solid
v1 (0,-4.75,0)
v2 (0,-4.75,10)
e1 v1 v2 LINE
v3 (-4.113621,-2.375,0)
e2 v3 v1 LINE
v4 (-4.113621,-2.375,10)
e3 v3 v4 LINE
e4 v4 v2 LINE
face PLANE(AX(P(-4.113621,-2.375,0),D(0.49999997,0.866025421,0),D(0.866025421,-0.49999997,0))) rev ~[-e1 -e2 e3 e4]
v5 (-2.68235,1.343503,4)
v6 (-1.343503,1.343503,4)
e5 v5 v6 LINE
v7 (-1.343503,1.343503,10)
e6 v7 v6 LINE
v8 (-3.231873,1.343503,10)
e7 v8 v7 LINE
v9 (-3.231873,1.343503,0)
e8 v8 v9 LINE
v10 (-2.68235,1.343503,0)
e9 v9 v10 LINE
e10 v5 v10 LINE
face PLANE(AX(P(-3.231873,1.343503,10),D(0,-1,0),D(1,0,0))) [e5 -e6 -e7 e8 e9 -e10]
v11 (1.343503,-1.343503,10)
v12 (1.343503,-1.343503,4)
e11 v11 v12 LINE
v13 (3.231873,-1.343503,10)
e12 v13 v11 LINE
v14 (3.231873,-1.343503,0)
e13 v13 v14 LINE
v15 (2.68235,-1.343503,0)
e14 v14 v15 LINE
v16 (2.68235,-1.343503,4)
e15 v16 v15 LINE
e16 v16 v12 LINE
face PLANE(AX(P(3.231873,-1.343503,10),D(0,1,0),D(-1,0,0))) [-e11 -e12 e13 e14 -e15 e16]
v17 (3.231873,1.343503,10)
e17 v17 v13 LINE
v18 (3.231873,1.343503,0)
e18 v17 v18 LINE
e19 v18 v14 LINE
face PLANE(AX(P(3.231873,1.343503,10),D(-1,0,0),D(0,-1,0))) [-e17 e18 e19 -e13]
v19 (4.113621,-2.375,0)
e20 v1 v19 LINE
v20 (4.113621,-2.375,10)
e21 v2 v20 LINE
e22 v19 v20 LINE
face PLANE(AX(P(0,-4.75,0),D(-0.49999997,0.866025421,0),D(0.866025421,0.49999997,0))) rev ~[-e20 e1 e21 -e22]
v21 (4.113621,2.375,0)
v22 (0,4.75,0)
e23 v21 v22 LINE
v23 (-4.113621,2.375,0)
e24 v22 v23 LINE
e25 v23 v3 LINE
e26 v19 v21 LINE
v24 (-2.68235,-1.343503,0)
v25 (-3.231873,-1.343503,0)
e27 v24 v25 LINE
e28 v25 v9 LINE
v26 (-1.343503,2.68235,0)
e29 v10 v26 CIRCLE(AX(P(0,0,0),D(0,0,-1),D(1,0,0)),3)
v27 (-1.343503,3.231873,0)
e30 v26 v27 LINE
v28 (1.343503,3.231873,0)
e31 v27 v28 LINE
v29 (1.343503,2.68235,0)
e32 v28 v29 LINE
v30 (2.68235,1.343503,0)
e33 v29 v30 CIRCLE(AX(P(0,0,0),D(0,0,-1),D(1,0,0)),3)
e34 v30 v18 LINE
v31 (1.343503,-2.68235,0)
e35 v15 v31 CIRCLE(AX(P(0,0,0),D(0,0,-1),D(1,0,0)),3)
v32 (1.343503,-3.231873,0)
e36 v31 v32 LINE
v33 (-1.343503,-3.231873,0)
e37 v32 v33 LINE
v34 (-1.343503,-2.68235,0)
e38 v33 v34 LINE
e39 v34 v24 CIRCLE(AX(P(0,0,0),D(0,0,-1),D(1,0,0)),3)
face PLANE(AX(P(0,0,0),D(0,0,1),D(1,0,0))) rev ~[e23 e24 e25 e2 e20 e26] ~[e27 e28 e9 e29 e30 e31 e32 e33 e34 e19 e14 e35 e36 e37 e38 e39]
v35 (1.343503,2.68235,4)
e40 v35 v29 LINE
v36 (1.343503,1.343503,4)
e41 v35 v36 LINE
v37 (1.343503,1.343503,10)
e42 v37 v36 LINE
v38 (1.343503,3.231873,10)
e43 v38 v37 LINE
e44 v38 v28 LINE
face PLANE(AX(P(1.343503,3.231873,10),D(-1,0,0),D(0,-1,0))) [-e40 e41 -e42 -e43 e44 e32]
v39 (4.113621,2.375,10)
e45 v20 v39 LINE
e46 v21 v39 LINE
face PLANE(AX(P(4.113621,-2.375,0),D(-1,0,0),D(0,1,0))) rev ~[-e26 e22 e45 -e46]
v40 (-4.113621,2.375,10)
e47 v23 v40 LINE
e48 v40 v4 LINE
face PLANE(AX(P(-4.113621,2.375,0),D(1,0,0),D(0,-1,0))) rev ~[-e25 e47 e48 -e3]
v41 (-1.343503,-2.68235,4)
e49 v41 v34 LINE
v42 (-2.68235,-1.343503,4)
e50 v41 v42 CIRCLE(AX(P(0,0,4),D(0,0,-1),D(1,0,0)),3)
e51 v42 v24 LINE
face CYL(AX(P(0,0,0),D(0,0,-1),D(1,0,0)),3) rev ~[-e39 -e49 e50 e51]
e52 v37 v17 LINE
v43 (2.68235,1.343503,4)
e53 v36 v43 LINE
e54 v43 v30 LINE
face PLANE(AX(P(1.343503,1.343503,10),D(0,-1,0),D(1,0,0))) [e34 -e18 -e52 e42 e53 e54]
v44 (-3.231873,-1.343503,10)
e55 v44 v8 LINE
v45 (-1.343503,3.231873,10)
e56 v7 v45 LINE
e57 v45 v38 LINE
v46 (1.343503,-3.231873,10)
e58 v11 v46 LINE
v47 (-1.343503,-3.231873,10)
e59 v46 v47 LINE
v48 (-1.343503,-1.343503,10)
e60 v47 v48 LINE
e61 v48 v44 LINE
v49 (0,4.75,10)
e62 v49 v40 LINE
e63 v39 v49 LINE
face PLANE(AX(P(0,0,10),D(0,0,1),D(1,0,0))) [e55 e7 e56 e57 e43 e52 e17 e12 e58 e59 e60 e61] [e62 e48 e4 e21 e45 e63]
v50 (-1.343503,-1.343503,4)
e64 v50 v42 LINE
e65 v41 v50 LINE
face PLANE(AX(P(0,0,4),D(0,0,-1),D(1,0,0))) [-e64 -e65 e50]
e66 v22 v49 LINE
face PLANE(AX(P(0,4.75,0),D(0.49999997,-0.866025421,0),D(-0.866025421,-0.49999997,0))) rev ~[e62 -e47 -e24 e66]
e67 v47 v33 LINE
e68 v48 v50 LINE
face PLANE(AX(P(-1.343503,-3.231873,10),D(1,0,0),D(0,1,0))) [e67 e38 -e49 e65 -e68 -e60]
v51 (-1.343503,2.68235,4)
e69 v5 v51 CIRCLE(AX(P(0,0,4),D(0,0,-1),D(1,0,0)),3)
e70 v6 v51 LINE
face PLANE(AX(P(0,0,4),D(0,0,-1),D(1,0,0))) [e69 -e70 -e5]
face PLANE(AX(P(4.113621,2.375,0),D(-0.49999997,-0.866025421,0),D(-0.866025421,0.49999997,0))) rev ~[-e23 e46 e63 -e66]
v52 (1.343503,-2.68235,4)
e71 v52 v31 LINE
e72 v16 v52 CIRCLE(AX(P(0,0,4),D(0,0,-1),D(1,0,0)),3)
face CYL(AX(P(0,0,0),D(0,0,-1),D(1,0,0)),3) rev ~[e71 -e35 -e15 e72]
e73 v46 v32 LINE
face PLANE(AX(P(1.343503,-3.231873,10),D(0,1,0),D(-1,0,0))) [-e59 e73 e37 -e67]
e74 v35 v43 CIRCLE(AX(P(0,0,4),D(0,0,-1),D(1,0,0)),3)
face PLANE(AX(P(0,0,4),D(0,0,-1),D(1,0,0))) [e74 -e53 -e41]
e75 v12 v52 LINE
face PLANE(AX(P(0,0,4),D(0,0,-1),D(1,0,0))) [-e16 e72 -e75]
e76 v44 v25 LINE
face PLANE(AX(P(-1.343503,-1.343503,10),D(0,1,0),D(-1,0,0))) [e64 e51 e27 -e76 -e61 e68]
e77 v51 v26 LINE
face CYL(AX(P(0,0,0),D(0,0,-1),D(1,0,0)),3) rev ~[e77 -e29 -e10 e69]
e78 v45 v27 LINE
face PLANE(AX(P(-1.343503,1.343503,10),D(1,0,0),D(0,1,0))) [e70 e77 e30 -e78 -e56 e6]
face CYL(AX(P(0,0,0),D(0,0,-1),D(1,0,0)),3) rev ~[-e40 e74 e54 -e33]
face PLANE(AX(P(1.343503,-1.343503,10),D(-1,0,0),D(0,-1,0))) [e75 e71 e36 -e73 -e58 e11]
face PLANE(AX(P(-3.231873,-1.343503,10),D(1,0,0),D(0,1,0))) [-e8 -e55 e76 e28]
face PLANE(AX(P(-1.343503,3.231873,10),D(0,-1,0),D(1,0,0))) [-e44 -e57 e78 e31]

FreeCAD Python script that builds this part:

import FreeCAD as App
import Part
import Sketcher
from FreeCAD import Vector
Q = App.Units.Quantity


def add_polygon(sketch, points):
    """Adds a closed chain of lines whose ends are joined by coincident constraints."""
    first, n = sketch.GeometryCount, len(points)
    for a, b in zip(points, points[1:] + points[:1]):
        sketch.addGeometry(Part.LineSegment(App.Vector(*a, 0), App.Vector(*b, 0)), False)
    for i in range(n):
        sketch.addConstraint(Sketcher.Constraint("Coincident", first + i, 2, first + (i + 1) % n, 1))

doc = App.newDocument("Part")
body = doc.addObject("PartDesign::Body", "Body")

# Sketch on XY plane
sketch1 = body.newObject("Sketcher::SketchObject", "Sketch")
sketch1.AttachmentSupport = (doc.getObject("XY_Plane"), [""])
sketch1.MapMode = "FlatFace"
add_polygon(sketch1, [(4.113621, -2.375), (4.113621, 2.375), (0, 4.75), (-4.113621, 2.375), (-4.113621, -2.375), (0, -4.75)])  # lines 0-5
sketch1.addConstraint([
    Sketcher.Constraint("Vertical", 0),
    Sketcher.Constraint("Vertical", 3),
    Sketcher.Constraint("Symmetric", 0, 2, 3, 2, -1, 1),
    Sketcher.Constraint("Symmetric", 1, 2, 4, 2, -1, 1),
    Sketcher.Constraint("PointOnObject", 1, 2, -2),
    Sketcher.Constraint("Parallel", 2, 5),
    Sketcher.Constraint("Horizontal", 0, 2, 2, 2),
    Sketcher.Constraint("Angle", 1, Q("150.000002 deg")),
    Sketcher.Constraint("DistanceY", 0, 1, 0, 2, Q("4.75 mm")),
    Sketcher.Constraint("DistanceY", 4, 2, 1, 2, Q("9.5 mm")),
])
pad1 = body.newObject("PartDesign::Pad", "Pad")
pad1.Profile = sketch1
pad1.Length = 10

# Sketch on XY plane
sketch2 = body.newObject("Sketcher::SketchObject", "Sketch001")
sketch2.AttachmentSupport = (doc.getObject("XY_Plane"), [""])
sketch2.MapMode = "FlatFace"
sketch2.AttachmentOffset = App.Placement(Vector(0, 0, 10), App.Rotation())
add_polygon(sketch2, [(-3.231873, 1.343503), (-3.231873, -1.343503), (-1.343503, -1.343503), (-1.343503, -3.231873), (1.343503, -3.231873), (1.343503, -1.343503), (3.231873, -1.343503), (3.231873, 1.343503), (1.343503, 1.343503), (1.343503, 3.231873), (-1.343503, 3.231873), (-1.343503, 1.343503)])  # lines 0-11
sketch2.addConstraint([
    Sketcher.Constraint("Vertical", 0),
    Sketcher.Constraint("Horizontal", 1),
    Sketcher.Constraint("Vertical", 2),
    Sketcher.Constraint("Horizontal", 3),
    Sketcher.Constraint("Vertical", 4),
    Sketcher.Constraint("Horizontal", 5),
    Sketcher.Constraint("Vertical", 6),
    Sketcher.Constraint("Horizontal", 7),
    Sketcher.Constraint("Vertical", 8),
    Sketcher.Constraint("Horizontal", 9),
    Sketcher.Constraint("Vertical", 10),
    Sketcher.Constraint("Horizontal", 11),
    Sketcher.Constraint("Symmetric", 0, 2, 6, 2, -1, 1),
    Sketcher.Constraint("Symmetric", 2, 2, 8, 2, -1, 1),
    Sketcher.Constraint("Symmetric", 4, 2, 10, 2, -1, 1),
    Sketcher.Constraint("Symmetric", 1, 2, 4, 2, -2),
    Sketcher.Constraint("Equal", 9, 0),
    Sketcher.Constraint("Equal", 11, 2),
    Sketcher.Constraint("DistanceX", 1, 1, 1, 2, Q("1.88837 mm")),
    Sketcher.Constraint("DistanceX", 3, 1, 3, 2, Q("2.687006 mm")),
])
pocket1 = body.newObject("PartDesign::Pocket", "Pocket")
pocket1.Profile = sketch2
pocket1.Length = 10

# Sketch on XY plane
sketch3 = body.newObject("Sketcher::SketchObject", "Sketch002")
sketch3.AttachmentSupport = (doc.getObject("XY_Plane"), [""])
sketch3.MapMode = "FlatFace"
sketch3.addGeometry(Part.Circle(Vector(0, 0, 0), Vector(0, 0, 1), 3), False)
sketch3.addConstraint([
    Sketcher.Constraint("Coincident", 0, 3, -1, 1),
    Sketcher.Constraint("Diameter", 0, Q("6 mm")),
])
pocket2 = body.newObject("PartDesign::Pocket", "Pocket001")
pocket2.Profile = sketch3
pocket2.Length = 4
pocket2.Reversed = True

doc.recompute()
